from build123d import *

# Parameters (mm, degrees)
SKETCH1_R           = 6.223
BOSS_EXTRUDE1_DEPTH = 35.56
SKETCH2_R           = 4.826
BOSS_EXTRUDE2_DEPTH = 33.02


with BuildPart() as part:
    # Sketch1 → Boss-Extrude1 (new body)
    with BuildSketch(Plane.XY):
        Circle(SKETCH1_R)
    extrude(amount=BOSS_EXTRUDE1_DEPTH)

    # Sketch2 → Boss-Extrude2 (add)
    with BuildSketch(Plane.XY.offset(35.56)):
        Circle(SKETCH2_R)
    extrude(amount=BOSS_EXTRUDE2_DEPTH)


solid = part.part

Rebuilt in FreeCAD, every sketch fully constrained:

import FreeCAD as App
import Part
import Sketcher

V = App.Vector
Q = App.Units.Quantity

doc = App.newDocument("Part")
body = doc.addObject("PartDesign::Body", "Body")

# Sketch on XY plane
sketch1 = body.newObject("Sketcher::SketchObject", "Sketch")
sketch1.AttachmentSupport = (doc.getObject("XY_Plane"), [""])
sketch1.MapMode = "FlatFace"
sketch1.addGeometry(Part.Circle(V(0, 0, 0), V(0, 0, 1), 6.223), False)
sketch1.addConstraint(Sketcher.Constraint("Coincident", 0, 3, -1, 1))
sketch1.addConstraint(Sketcher.Constraint("Diameter", 0, Q("0.49 in")))
pad1 = body.newObject("PartDesign::Pad", "Pad")
pad1.Profile = sketch1
pad1.Length = Q("1.4 in")

# Sketch on XY plane
sketch2 = body.newObject("Sketcher::SketchObject", "Sketch001")
sketch2.AttachmentSupport = (doc.getObject("XY_Plane"), [""])
sketch2.MapMode = "FlatFace"
sketch2.AttachmentOffset = App.Placement(V(0, 0, 1.4 * 25.4), App.Rotation())
sketch2.addGeometry(Part.Circle(V(0, 0, 0), V(0, 0, 1), 4.826), False)
sketch2.addConstraint(Sketcher.Constraint("Coincident", 0, 3, -1, 1))
sketch2.addConstraint(Sketcher.Constraint("Diameter", 0, Q("0.38 in")))
pad2 = body.newObject("PartDesign::Pad", "Pad001")
pad2.Profile = sketch2
pad2.Length = Q("1.3 in")

doc.recompute()
